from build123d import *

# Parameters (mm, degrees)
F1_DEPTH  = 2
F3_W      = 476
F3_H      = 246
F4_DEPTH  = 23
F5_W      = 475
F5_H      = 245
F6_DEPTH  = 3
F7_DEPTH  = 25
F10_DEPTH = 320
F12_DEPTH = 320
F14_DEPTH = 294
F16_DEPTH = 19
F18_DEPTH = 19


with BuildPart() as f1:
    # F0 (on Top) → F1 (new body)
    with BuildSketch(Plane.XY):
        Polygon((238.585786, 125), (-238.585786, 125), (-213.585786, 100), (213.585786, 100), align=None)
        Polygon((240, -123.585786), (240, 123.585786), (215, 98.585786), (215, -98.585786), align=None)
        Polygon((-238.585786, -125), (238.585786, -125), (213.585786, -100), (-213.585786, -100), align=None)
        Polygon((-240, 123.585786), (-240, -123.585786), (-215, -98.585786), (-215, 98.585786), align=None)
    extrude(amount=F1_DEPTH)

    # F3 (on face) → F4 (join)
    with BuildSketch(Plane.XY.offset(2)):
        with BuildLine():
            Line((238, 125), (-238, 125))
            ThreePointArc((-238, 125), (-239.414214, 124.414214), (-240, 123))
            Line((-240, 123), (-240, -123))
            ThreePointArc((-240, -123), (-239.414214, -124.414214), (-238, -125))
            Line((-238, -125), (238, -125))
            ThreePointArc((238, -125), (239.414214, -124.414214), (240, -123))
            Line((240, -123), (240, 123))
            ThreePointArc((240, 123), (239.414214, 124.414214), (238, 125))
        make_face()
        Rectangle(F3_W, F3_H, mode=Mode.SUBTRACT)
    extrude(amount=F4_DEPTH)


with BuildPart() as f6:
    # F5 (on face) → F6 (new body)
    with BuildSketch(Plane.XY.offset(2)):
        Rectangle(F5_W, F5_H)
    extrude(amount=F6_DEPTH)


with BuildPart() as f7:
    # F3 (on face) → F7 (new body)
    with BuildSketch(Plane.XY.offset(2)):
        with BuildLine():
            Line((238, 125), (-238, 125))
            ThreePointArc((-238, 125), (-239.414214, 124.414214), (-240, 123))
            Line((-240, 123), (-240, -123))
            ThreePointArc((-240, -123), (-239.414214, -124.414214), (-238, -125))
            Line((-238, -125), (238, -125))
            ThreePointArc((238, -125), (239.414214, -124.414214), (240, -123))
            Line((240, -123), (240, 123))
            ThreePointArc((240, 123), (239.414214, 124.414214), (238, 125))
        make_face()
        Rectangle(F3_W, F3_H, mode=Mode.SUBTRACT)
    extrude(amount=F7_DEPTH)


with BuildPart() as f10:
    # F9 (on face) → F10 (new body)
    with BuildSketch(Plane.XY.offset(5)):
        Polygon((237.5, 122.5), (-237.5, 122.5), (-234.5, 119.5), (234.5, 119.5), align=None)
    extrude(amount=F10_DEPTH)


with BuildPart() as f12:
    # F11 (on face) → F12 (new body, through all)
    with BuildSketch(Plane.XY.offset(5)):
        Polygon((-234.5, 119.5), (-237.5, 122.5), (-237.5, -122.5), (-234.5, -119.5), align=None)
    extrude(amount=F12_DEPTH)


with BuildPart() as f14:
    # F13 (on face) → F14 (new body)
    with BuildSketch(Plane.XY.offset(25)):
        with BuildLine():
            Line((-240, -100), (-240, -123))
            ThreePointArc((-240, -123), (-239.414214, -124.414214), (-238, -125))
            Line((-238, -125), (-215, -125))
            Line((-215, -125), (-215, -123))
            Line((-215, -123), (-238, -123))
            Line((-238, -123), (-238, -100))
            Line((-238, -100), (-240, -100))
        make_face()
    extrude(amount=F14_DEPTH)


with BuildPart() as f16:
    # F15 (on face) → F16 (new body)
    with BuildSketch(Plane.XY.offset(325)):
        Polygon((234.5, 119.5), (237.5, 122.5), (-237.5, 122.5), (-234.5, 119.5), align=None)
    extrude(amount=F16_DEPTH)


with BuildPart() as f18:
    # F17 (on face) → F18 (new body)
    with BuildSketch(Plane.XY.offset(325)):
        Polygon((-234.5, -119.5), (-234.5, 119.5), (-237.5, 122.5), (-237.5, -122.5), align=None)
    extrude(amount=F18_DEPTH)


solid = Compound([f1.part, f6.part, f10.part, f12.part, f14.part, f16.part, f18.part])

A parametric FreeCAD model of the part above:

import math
import FreeCAD as App
import Part
import Sketcher
Q = App.Units.Quantity


def add_polygon(sketch, points):
    """Adds a closed chain of lines whose ends are joined by coincident constraints."""
    first, n = sketch.GeometryCount, len(points)
    for a, b in zip(points, points[1:] + points[:1]):
        sketch.addGeometry(Part.LineSegment(App.Vector(*a, 0), App.Vector(*b, 0)), False)
    for i in range(n):
        sketch.addConstraint(Sketcher.Constraint("Coincident", first + i, 2, first + (i + 1) % n, 1))

doc = App.newDocument("Part")
body = doc.addObject("PartDesign::Body", "Body")
body.AllowCompound = True

sketch1 = doc.addObject("Sketcher::SketchObject", "Sketch")
body.addObject(sketch1)
sketch1.AttachmentSupport = (doc.XY_Plane, [""])
sketch1.MapMode = "FlatFace"
add_polygon(sketch1, [(238.585786, 125), (-238.585786, 125), (-213.585786, 100), (213.585786, 100)])
add_polygon(sketch1, [(240, -123.585786), (240, 123.585786), (215, 98.585786), (215, -98.585786)])
add_polygon(sketch1, [(-238.585786, -125), (238.585786, -125), (213.585786, -100), (-213.585786, -100)])
add_polygon(sketch1, [(-240, 123.585786), (-240, -123.585786), (-215, -98.585786), (-215, 98.585786)])
sketch1.addConstraint([
    Sketcher.Constraint("Horizontal", 0),
    Sketcher.Constraint("Horizontal", 2),
    Sketcher.Constraint("Vertical", 4),
    Sketcher.Constraint("Vertical", 6),
    Sketcher.Constraint("Horizontal", 8),
    Sketcher.Constraint("Horizontal", 10),
    Sketcher.Constraint("Vertical", 12),
    Sketcher.Constraint("Vertical", 14),
    Sketcher.Constraint("Symmetric", 0, 2, 8, 2, -1, 1),
    Sketcher.Constraint("Symmetric", 1, 2, 9, 2, -1, 1),
    Sketcher.Constraint("Symmetric", 4, 2, 12, 2, -1, 1),
    Sketcher.Constraint("Symmetric", 5, 2, 13, 2, -1, 1),
    Sketcher.Constraint("Perpendicular", 1, 3),
    Sketcher.Constraint("Parallel", 3, 5),
    Sketcher.Constraint("Perpendicular", 5, 7),
    Sketcher.Constraint("Perpendicular", 9, 11),
    Sketcher.Constraint("Perpendicular", 13, 15),
    Sketcher.Constraint("Horizontal", 7, 2, 12, 2),
    Sketcher.Constraint("Horizontal", 6, 2, 13, 2),
    Sketcher.Constraint("Horizontal", 5, 2, 14, 2),
    Sketcher.Constraint("Vertical", 3, 2, 8, 2),
    Sketcher.Constraint("Vertical", 1, 2, 10, 2),
    Sketcher.Constraint("Equal", 3, 5),
    Sketcher.Constraint("DistanceY", -1, 1, 0, 2, Q("125 mm")),
    Sketcher.Constraint("DistanceY", -1, 1, 1, 2, Q("100 mm")),
    Sketcher.Constraint("DistanceX", -1, 1, 4, 2, Q("240 mm")),
    Sketcher.Constraint("DistanceY", 4, 1, 4, 2, Q("247.171572 mm")),
    Sketcher.Constraint("DistanceX", 0, 2, 0, 1, Q("477.171572 mm")),
])
pad1 = doc.addObject("PartDesign::Pad", "Pad")
body.addObject(pad1)
pad1.Profile = sketch1
pad1.Length = 2

sketch2 = doc.addObject("Sketcher::SketchObject", "Sketch001")
body.addObject(sketch2)
sketch2.AttachmentSupport = (doc.XY_Plane, [""])
sketch2.MapMode = "FlatFace"
sketch2.AttachmentOffset = App.Placement(App.Vector(0, 0, 2), App.Rotation())
sketch2.addGeometry(Part.LineSegment(App.Vector(238, 125, 0), App.Vector(-238, 125, 0)), False)
sketch2.addGeometry(Part.ArcOfCircle(Part.Circle(App.Vector(-238.000001, 123.000001, 0), App.Vector(0, 0, 1), 1.999999), math.radians(89.999957), math.radians(180.000043)), False)
sketch2.addGeometry(Part.LineSegment(App.Vector(-240, 123, 0), App.Vector(-240, -123, 0)), False)
sketch2.addGeometry(Part.ArcOfCircle(Part.Circle(App.Vector(-238.000001, -123.000001, 0), App.Vector(0, 0, 1), 1.999999), math.radians(179.999957), math.radians(270.000043)), False)
sketch2.addGeometry(Part.LineSegment(App.Vector(-238, -125, 0), App.Vector(238, -125, 0)), False)
sketch2.addGeometry(Part.ArcOfCircle(Part.Circle(App.Vector(238.000001, -123.000001, 0), App.Vector(0, 0, 1), 1.999999), math.radians(-90.000043), math.radians(0.000043)), False)
sketch2.addGeometry(Part.LineSegment(App.Vector(240, -123, 0), App.Vector(240, 123, 0)), False)
sketch2.addGeometry(Part.ArcOfCircle(Part.Circle(App.Vector(238.000001, 123.000001, 0), App.Vector(0, 0, 1), 1.999999), math.radians(-0.000043), math.radians(90.000043)), False)
add_polygon(sketch2, [(238, -123), (-238, -123), (-238, 123), (238, 123)])
sketch2.addConstraint([
    Sketcher.Constraint("Tangent", 0, 2, 1, 1),
    Sketcher.Constraint("Tangent", 1, 2, 2, 1),
    Sketcher.Constraint("Tangent", 2, 2, 3, 1),
    Sketcher.Constraint("Tangent", 3, 2, 4, 1),
    Sketcher.Constraint("Tangent", 4, 2, 5, 1),
    Sketcher.Constraint("Tangent", 5, 2, 6, 1),
    Sketcher.Constraint("Tangent", 6, 2, 7, 1),
    Sketcher.Constraint("Tangent", 7, 2, 0, 1),
    Sketcher.Constraint("Horizontal", 0),
    Sketcher.Constraint("Vertical", 2),
    Sketcher.Constraint("Horizontal", 4),
    Sketcher.Constraint("Vertical", 6),
    Sketcher.Constraint("Horizontal", 8),
    Sketcher.Constraint("Vertical", 9),
    Sketcher.Constraint("Horizontal", 10),
    Sketcher.Constraint("Vertical", 11),
    Sketcher.Constraint("Coincident", 8, 2, 3, 3),
    Sketcher.Constraint("Coincident", 9, 2, 1, 3),
    Sketcher.Constraint("Coincident", 10, 2, 7, 3),
    Sketcher.Constraint("Equal", 3, 5),
    Sketcher.Constraint("Symmetric", 1, 3, 5, 3, -1, 1),
    Sketcher.Constraint("Radius", 1, Q("1.999999 mm")),
    Sketcher.Constraint("DistanceX", 0, 2, 0, 1, Q("476 mm")),
    Sketcher.Constraint("DistanceY", 2, 2, 2, 1, Q("246 mm")),
])
pad2 = doc.addObject("PartDesign::Pad", "Pad001")
body.addObject(pad2)
pad2.Profile = sketch2
pad2.Length = 23
body2 = doc.addObject("PartDesign::Body", "Body001")

sketch3 = doc.addObject("Sketcher::SketchObject", "Sketch002")
body2.addObject(sketch3)
sketch3.AttachmentSupport = (doc.getObject("XY_Plane001"), [""])
sketch3.MapMode = "FlatFace"
sketch3.AttachmentOffset = App.Placement(App.Vector(0, 0, 2), App.Rotation())
add_polygon(sketch3, [(-237.5, 122.5), (-237.5, -122.5), (237.5, -122.5), (237.5, 122.5)])
sketch3.addConstraint([
    Sketcher.Constraint("Vertical", 0),
    Sketcher.Constraint("Horizontal", 1),
    Sketcher.Constraint("Vertical", 2),
    Sketcher.Constraint("Horizontal", 3),
    Sketcher.Constraint("Symmetric", 0, 2, 2, 2, -1, 1),
    Sketcher.Constraint("DistanceX", 1, 1, 1, 2, Q("475 mm")),
    Sketcher.Constraint("DistanceY", 0, 2, 0, 1, Q("245 mm")),
])
pad3 = doc.addObject("PartDesign::Pad", "Pad002")
body2.addObject(pad3)
pad3.Profile = sketch3
pad3.Length = 3
body3 = doc.addObject("PartDesign::Body", "Body002")

sketch4 = doc.addObject("Sketcher::SketchObject", "Sketch003")
body3.addObject(sketch4)
sketch4.AttachmentSupport = (doc.getObject("XY_Plane002"), [""])
sketch4.MapMode = "FlatFace"
sketch4.AttachmentOffset = App.Placement(App.Vector(0, 0, 2), App.Rotation())
sketch4.addGeometry(Part.LineSegment(App.Vector(238, 125, 0), App.Vector(-238, 125, 0)), False)
sketch4.addGeometry(Part.ArcOfCircle(Part.Circle(App.Vector(-238.000001, 123.000001, 0), App.Vector(0, 0, 1), 1.999999), math.radians(89.999957), math.radians(180.000043)), False)
sketch4.addGeometry(Part.LineSegment(App.Vector(-240, 123, 0), App.Vector(-240, -123, 0)), False)
sketch4.addGeometry(Part.ArcOfCircle(Part.Circle(App.Vector(-238.000001, -123.000001, 0), App.Vector(0, 0, 1), 1.999999), math.radians(179.999957), math.radians(270.000043)), False)
sketch4.addGeometry(Part.LineSegment(App.Vector(-238, -125, 0), App.Vector(238, -125, 0)), False)
sketch4.addGeometry(Part.ArcOfCircle(Part.Circle(App.Vector(238.000001, -123.000001, 0), App.Vector(0, 0, 1), 1.999999), math.radians(-90.000043), math.radians(0.000043)), False)
sketch4.addGeometry(Part.LineSegment(App.Vector(240, -123, 0), App.Vector(240, 123, 0)), False)
sketch4.addGeometry(Part.ArcOfCircle(Part.Circle(App.Vector(238.000001, 123.000001, 0), App.Vector(0, 0, 1), 1.999999), math.radians(-0.000043), math.radians(90.000043)), False)
add_polygon(sketch4, [(238, -123), (-238, -123), (-238, 123), (238, 123)])
sketch4.addConstraint([
    Sketcher.Constraint("Tangent", 0, 2, 1, 1),
    Sketcher.Constraint("Tangent", 1, 2, 2, 1),
    Sketcher.Constraint("Tangent", 2, 2, 3, 1),
    Sketcher.Constraint("Tangent", 3, 2, 4, 1),
    Sketcher.Constraint("Tangent", 4, 2, 5, 1),
    Sketcher.Constraint("Tangent", 5, 2, 6, 1),
    Sketcher.Constraint("Tangent", 6, 2, 7, 1),
    Sketcher.Constraint("Tangent", 7, 2, 0, 1),
    Sketcher.Constraint("Horizontal", 0),
    Sketcher.Constraint("Vertical", 2),
    Sketcher.Constraint("Horizontal", 4),
    Sketcher.Constraint("Vertical", 6),
    Sketcher.Constraint("Horizontal", 8),
    Sketcher.Constraint("Vertical", 9),
    Sketcher.Constraint("Horizontal", 10),
    Sketcher.Constraint("Vertical", 11),
    Sketcher.Constraint("Coincident", 8, 2, 3, 3),
    Sketcher.Constraint("Coincident", 9, 2, 1, 3),
    Sketcher.Constraint("Coincident", 10, 2, 7, 3),
    Sketcher.Constraint("Equal", 3, 5),
    Sketcher.Constraint("Symmetric", 1, 3, 5, 3, -1, 1),
    Sketcher.Constraint("Radius", 1, Q("1.999999 mm")),
    Sketcher.Constraint("DistanceX", 0, 2, 0, 1, Q("476 mm")),
    Sketcher.Constraint("DistanceY", 2, 2, 2, 1, Q("246 mm")),
])
pad4 = doc.addObject("PartDesign::Pad", "Pad003")
body3.addObject(pad4)
pad4.Profile = sketch4
pad4.Length = 25
body4 = doc.addObject("PartDesign::Body", "Body003")

sketch5 = doc.addObject("Sketcher::SketchObject", "Sketch004")
body4.addObject(sketch5)
sketch5.AttachmentSupport = (doc.getObject("XY_Plane003"), [""])
sketch5.MapMode = "FlatFace"
sketch5.AttachmentOffset = App.Placement(App.Vector(0, 0, 5), App.Rotation())
add_polygon(sketch5, [(237.5, 122.5), (-237.5, 122.5), (-234.5, 119.5), (234.5, 119.5)])
sketch5.addConstraint([
    Sketcher.Constraint("Horizontal", 0),
    Sketcher.Constraint("Horizontal", 2),
    Sketcher.Constraint("Perpendicular", 1, 3),
    Sketcher.Constraint("Equal", 1, 3),
    Sketcher.Constraint("DistanceX", 0, 2, 0, 1, Q("475 mm")),
    Sketcher.Constraint("DistanceX", 2, 1, 2, 2, Q("469 mm")),
    Sketcher.Constraint("DistanceX", 0, 2, -1, 1, Q("237.5 mm")),
    Sketcher.Constraint("DistanceY", -1, 1, 0, 2, Q("122.5 mm")),
])
pad5 = doc.addObject("PartDesign::Pad", "Pad004")
body4.addObject(pad5)
pad5.Profile = sketch5
pad5.Length = 320
body5 = doc.addObject("PartDesign::Body", "Body004")

sketch6 = doc.addObject("Sketcher::SketchObject", "Sketch005")
body5.addObject(sketch6)
sketch6.AttachmentSupport = (doc.getObject("XY_Plane004"), [""])
sketch6.MapMode = "FlatFace"
sketch6.AttachmentOffset = App.Placement(App.Vector(0, 0, 5), App.Rotation())
add_polygon(sketch6, [(-234.5, 119.5), (-237.5, 122.5), (-237.5, -122.5), (-234.5, -119.5)])
sketch6.addConstraint([
    Sketcher.Constraint("Vertical", 1),
    Sketcher.Constraint("Vertical", 3),
    Sketcher.Constraint("Perpendicular", 0, 2),
    Sketcher.Constraint("Equal", 0, 2),
    Sketcher.Constraint("DistanceY", 1, 2, 1, 1, Q("245 mm")),
    Sketcher.Constraint("DistanceY", 3, 1, 3, 2, Q("239 mm")),
    Sketcher.Constraint("DistanceX", 0, 2, -1, 1, Q("237.5 mm")),
    Sketcher.Constraint("DistanceY", -1, 1, 0, 2, Q("122.5 mm")),
])
pad6 = doc.addObject("PartDesign::Pad", "Pad005")
body5.addObject(pad6)
pad6.Profile = sketch6
pad6.Length = 320
body6 = doc.addObject("PartDesign::Body", "Body005")

sketch7 = doc.addObject("Sketcher::SketchObject", "Sketch006")
body6.addObject(sketch7)
sketch7.AttachmentSupport = (doc.getObject("XY_Plane005"), [""])
sketch7.MapMode = "FlatFace"
sketch7.AttachmentOffset = App.Placement(App.Vector(0, 0, 25), App.Rotation())
sketch7.addGeometry([
    Part.LineSegment(App.Vector(-240, -100, 0), App.Vector(-240, -123, 0)),
    Part.ArcOfCircle(Part.Circle(App.Vector(-238.000001, -123.000001, 0), App.Vector(0, 0, 1), 1.999999), math.radians(179.999957), math.radians(270.000043)),
    Part.LineSegment(App.Vector(-238, -125, 0), App.Vector(-215, -125, 0)),
    Part.LineSegment(App.Vector(-215, -125, 0), App.Vector(-215, -123, 0)),
    Part.LineSegment(App.Vector(-215, -123, 0), App.Vector(-238, -123, 0)),
    Part.LineSegment(App.Vector(-238, -123, 0), App.Vector(-238, -100, 0)),
    Part.LineSegment(App.Vector(-238, -100, 0), App.Vector(-240, -100, 0)),
], False)
sketch7.addConstraint([
    Sketcher.Constraint("Tangent", 0, 2, 1, 1),
    Sketcher.Constraint("Tangent", 1, 2, 2, 1),
    Sketcher.Constraint("Coincident", 2, 2, 3, 1),
    Sketcher.Constraint("Coincident", 3, 2, 4, 1),
    Sketcher.Constraint("Coincident", 4, 2, 5, 1),
    Sketcher.Constraint("Coincident", 5, 2, 6, 1),
    Sketcher.Constraint("Coincident", 6, 2, 0, 1),
    Sketcher.Constraint("Vertical", 0),
    Sketcher.Constraint("Horizontal", 2),
    Sketcher.Constraint("Vertical", 3),
    Sketcher.Constraint("Horizontal", 4),
    Sketcher.Constraint("Vertical", 5),
    Sketcher.Constraint("Horizontal", 6),
    Sketcher.Constraint("Coincident", 4, 2, 1, 3),
    Sketcher.Constraint("Equal", 4, 0),
    Sketcher.Constraint("Radius", 1, Q("1.999999 mm")),
    Sketcher.Constraint("DistanceX", 2, 1, 2, 2, Q("23 mm")),
    Sketcher.Constraint("DistanceX", 1, 3, -1, 1, Q("238.000001 mm")),
    Sketcher.Constraint("DistanceY", 1, 3, -1, 1, Q("123.000001 mm")),
])
pad7 = doc.addObject("PartDesign::Pad", "Pad006")
body6.addObject(pad7)
pad7.Profile = sketch7
pad7.Length = 294
body7 = doc.addObject("PartDesign::Body", "Body006")

sketch8 = doc.addObject("Sketcher::SketchObject", "Sketch007")
body7.addObject(sketch8)
sketch8.AttachmentSupport = (doc.getObject("XY_Plane006"), [""])
sketch8.MapMode = "FlatFace"
sketch8.AttachmentOffset = App.Placement(App.Vector(0, 0, 325), App.Rotation())
add_polygon(sketch8, [(234.5, 119.5), (237.5, 122.5), (-237.5, 122.5), (-234.5, 119.5)])
sketch8.addConstraint([
    Sketcher.Constraint("Horizontal", 1),
    Sketcher.Constraint("Horizontal", 3),
    Sketcher.Constraint("Perpendicular", 0, 2),
    Sketcher.Constraint("Equal", 0, 2),
    Sketcher.Constraint("DistanceX", 1, 2, 1, 1, Q("475 mm")),
    Sketcher.Constraint("DistanceX", 3, 1, 3, 2, Q("469 mm")),
    Sketcher.Constraint("DistanceX", -1, 1, 0, 2, Q("237.5 mm")),
    Sketcher.Constraint("DistanceY", -1, 1, 0, 2, Q("122.5 mm")),
])
pad8 = doc.addObject("PartDesign::Pad", "Pad007")
body7.addObject(pad8)
pad8.Profile = sketch8
pad8.Length = 19
body8 = doc.addObject("PartDesign::Body", "Body007")

sketch9 = doc.addObject("Sketcher::SketchObject", "Sketch008")
body8.addObject(sketch9)
sketch9.AttachmentSupport = (doc.getObject("XY_Plane007"), [""])
sketch9.MapMode = "FlatFace"
sketch9.AttachmentOffset = App.Placement(App.Vector(0, 0, 325), App.Rotation())
add_polygon(sketch9, [(-234.5, -119.5), (-234.5, 119.5), (-237.5, 122.5), (-237.5, -122.5)])
sketch9.addConstraint([
    Sketcher.Constraint("Vertical", 0),
    Sketcher.Constraint("Vertical", 2),
    Sketcher.Constraint("Perpendicular", 1, 3),
    Sketcher.Constraint("Equal", 1, 3),
    Sketcher.Constraint("DistanceY", 0, 1, 0, 2, Q("239 mm")),
    Sketcher.Constraint("DistanceY", 2, 2, 2, 1, Q("245 mm")),
    Sketcher.Constraint("DistanceX", 0, 2, -1, 1, Q("234.5 mm")),
    Sketcher.Constraint("DistanceY", -1, 1, 0, 2, Q("119.5 mm")),
])
pad9 = doc.addObject("PartDesign::Pad", "Pad008")
body8.addObject(pad9)
pad9.Profile = sketch9
pad9.Length = 19
body3.Visibility = False

doc.recompute()
